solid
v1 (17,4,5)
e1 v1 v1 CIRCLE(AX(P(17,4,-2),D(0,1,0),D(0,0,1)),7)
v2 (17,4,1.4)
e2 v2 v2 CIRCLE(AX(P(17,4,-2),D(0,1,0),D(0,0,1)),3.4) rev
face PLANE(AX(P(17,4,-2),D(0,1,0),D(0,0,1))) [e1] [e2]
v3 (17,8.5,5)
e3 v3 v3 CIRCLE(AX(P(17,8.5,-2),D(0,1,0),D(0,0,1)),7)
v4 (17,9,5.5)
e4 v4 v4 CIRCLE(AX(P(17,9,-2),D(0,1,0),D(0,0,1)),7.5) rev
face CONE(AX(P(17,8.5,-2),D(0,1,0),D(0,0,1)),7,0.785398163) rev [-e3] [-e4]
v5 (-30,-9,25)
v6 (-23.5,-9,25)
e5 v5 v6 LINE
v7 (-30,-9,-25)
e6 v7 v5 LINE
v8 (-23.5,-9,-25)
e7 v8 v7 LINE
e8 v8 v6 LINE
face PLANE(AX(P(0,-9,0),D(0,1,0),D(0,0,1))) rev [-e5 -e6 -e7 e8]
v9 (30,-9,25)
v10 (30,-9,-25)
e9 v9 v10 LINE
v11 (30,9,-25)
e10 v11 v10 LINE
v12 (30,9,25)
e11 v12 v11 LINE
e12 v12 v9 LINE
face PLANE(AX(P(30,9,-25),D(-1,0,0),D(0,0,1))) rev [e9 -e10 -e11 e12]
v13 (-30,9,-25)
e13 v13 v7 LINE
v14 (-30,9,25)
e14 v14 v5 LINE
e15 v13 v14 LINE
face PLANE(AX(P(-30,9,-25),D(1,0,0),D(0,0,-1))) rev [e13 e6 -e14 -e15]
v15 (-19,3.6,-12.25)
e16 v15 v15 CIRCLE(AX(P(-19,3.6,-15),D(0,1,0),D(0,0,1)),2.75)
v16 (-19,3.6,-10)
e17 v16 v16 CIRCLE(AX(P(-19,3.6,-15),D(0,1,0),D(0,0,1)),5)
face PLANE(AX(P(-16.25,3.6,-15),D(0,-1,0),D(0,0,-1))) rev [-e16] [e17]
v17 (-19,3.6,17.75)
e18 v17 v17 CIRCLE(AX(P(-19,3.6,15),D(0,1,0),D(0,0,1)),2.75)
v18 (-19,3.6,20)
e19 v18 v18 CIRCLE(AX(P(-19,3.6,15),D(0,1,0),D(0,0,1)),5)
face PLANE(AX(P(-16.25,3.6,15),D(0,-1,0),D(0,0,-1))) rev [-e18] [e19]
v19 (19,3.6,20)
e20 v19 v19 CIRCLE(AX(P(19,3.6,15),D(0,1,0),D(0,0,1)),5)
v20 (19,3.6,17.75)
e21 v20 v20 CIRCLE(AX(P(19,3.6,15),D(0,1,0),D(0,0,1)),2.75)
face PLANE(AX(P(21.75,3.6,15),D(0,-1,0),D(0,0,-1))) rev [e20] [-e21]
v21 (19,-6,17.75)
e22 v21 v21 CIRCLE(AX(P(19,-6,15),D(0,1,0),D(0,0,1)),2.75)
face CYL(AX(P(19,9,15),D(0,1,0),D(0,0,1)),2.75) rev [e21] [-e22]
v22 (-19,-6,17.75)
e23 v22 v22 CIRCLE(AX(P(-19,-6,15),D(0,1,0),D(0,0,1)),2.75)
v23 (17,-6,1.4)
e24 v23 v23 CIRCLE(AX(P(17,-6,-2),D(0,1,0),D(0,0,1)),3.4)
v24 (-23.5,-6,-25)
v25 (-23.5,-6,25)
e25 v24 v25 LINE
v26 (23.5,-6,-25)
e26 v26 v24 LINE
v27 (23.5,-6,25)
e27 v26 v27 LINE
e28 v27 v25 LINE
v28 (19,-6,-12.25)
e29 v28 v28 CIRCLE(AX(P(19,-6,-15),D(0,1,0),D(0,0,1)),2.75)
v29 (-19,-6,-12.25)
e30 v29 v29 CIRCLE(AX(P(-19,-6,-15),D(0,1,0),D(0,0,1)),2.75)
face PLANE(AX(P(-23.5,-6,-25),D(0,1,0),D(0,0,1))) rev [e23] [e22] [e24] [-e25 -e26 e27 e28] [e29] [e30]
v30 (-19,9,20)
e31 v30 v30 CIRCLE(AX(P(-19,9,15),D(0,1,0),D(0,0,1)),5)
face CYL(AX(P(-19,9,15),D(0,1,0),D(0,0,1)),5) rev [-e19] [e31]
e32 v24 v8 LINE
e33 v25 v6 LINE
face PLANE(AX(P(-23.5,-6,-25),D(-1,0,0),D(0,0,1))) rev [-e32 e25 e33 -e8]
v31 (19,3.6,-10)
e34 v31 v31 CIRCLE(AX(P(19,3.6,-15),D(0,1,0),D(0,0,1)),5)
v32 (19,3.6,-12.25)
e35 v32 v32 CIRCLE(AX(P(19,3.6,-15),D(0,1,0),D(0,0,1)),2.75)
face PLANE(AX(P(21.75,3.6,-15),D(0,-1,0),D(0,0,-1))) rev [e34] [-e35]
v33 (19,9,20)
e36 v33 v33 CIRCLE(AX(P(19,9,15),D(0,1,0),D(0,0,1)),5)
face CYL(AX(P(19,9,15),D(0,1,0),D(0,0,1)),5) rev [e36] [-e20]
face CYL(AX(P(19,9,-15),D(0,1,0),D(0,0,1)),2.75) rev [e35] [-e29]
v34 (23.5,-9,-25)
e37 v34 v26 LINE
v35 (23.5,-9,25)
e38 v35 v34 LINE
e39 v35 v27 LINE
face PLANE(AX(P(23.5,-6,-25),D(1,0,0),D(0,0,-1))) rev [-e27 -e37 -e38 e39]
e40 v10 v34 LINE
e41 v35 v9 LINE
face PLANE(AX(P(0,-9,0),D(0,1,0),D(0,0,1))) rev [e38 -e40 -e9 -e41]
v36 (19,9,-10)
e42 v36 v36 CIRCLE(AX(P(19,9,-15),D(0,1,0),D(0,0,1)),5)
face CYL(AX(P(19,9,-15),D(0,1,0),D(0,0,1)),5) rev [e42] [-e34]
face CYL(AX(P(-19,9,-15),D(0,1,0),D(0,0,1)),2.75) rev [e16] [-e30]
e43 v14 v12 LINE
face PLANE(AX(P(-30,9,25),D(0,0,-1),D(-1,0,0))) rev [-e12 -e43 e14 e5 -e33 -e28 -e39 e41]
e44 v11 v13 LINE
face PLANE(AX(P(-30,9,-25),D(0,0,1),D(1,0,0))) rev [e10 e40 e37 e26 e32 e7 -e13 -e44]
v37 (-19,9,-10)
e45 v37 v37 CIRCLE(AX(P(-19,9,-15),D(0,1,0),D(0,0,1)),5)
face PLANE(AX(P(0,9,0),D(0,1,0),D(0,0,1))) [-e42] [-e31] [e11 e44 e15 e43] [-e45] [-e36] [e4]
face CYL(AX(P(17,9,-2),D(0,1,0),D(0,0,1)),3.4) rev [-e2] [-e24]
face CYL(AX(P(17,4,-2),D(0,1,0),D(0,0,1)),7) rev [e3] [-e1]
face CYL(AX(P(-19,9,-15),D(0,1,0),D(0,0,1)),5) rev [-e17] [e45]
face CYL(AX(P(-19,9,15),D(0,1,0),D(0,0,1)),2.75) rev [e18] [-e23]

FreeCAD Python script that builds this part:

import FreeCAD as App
import Part
import Sketcher

V = App.Vector


def edges_at(feature, points):
    """Names of the edges that pass closest to the given points."""
    edges = feature.Shape.Edges
    near = lambda p: min(range(len(edges)), key=lambda i: edges[i].distToShape(Part.Vertex(*p))[0])
    return sorted({f"Edge{near(p) + 1}" for p in points})

doc = App.newDocument("Part")
body = doc.addObject("PartDesign::Body", "Body")

# Sketch on XZ plane
sketch1 = body.newObject("Sketcher::SketchObject", "Sketch")
sketch1.AttachmentSupport = (doc.getObject("XZ_Plane"), [""])
sketch1.MapMode = "FlatFace"
sketch1.addGeometry(Part.LineSegment(V(-30, -25, 0), V(-30, 25, 0)), False)
sketch1.addGeometry(Part.LineSegment(V(-30, 25, 0), V(30, 25, 0)), False)
sketch1.addGeometry(Part.LineSegment(V(30, 25, 0), V(30, -25, 0)), False)
sketch1.addGeometry(Part.LineSegment(V(30, -25, 0), V(-30, -25, 0)), False)
sketch1.addConstraint(Sketcher.Constraint("Coincident", 0, 2, 1, 1))
sketch1.addConstraint(Sketcher.Constraint("Coincident", 1, 2, 2, 1))
sketch1.addConstraint(Sketcher.Constraint("Coincident", 2, 2, 3, 1))
sketch1.addConstraint(Sketcher.Constraint("Coincident", 3, 2, 0, 1))
sketch1.addConstraint(Sketcher.Constraint("Vertical", 0))
sketch1.addConstraint(Sketcher.Constraint("Horizontal", 1))
sketch1.addConstraint(Sketcher.Constraint("Vertical", 2))
sketch1.addConstraint(Sketcher.Constraint("Horizontal", 3))
sketch1.addConstraint(Sketcher.Constraint("Symmetric", 0, 2, 2, 2, -1, 1))
sketch1.addConstraint(Sketcher.Constraint("DistanceX", 1, 1, 1, 2, 60.0))
sketch1.addConstraint(Sketcher.Constraint("DistanceY", 0, 1, 0, 2, 50.0))
pad1 = body.newObject("PartDesign::Pad", "Pad")
pad1.Profile = sketch1
pad1.Length = 18
pad1.Midplane = True

# Sketch on XY plane
sketch2 = body.newObject("Sketcher::SketchObject", "Sketch001")
sketch2.AttachmentSupport = (doc.getObject("XY_Plane"), [""])
sketch2.MapMode = "FlatFace"
sketch2.AttachmentOffset = App.Placement(V(0, 0, 25), App.Rotation())
sketch2.addGeometry(Part.LineSegment(V(-24, -6, 0), V(-24, -12, 0)), False)
sketch2.addGeometry(Part.LineSegment(V(-24, -12, 0), V(24, -12, 0)), False)
sketch2.addGeometry(Part.LineSegment(V(24, -12, 0), V(24, -6, 0)), False)
sketch2.addGeometry(Part.LineSegment(V(24, -6, 0), V(-24, -6, 0)), False)
sketch2.addConstraint(Sketcher.Constraint("Coincident", 0, 2, 1, 1))
sketch2.addConstraint(Sketcher.Constraint("Coincident", 1, 2, 2, 1))
sketch2.addConstraint(Sketcher.Constraint("Coincident", 2, 2, 3, 1))
sketch2.addConstraint(Sketcher.Constraint("Coincident", 3, 2, 0, 1))
sketch2.addConstraint(Sketcher.Constraint("Vertical", 0))
sketch2.addConstraint(Sketcher.Constraint("Horizontal", 1))
sketch2.addConstraint(Sketcher.Constraint("Vertical", 2))
sketch2.addConstraint(Sketcher.Constraint("Horizontal", 3))
sketch2.addConstraint(Sketcher.Constraint("DistanceX", 1, 1, 1, 2, 47.0))
sketch2.addConstraint(Sketcher.Constraint("DistanceY", 0, 2, 0, 1, 6.0))
sketch2.addConstraint(Sketcher.Constraint("DistanceY", 0, 2, -1, 1, 12.0))
sketch2.addConstraint(Sketcher.Constraint("DistanceX", 0, 2, -1, 1, 23.5))
pocket1 = body.newObject("PartDesign::Pocket", "Pocket")
pocket1.Profile = sketch2
pocket1.Type = "ThroughAll"

# Sketch on XZ plane
sketch3 = body.newObject("Sketcher::SketchObject", "Sketch002")
sketch3.AttachmentSupport = (doc.getObject("XZ_Plane"), [""])
sketch3.MapMode = "FlatFace"
sketch3.AttachmentOffset = App.Placement(V(0, 0, -9), App.Rotation())
sketch3.addGeometry(Part.Circle(V(-19, -15, 0), V(0, 0, 1), 2.8), False)
sketch3.addGeometry(Part.Circle(V(19, -15, 0), V(0, 0, 1), 2.8), False)
sketch3.addGeometry(Part.Circle(V(19, 15, 0), V(0, 0, 1), 2.8), False)
sketch3.addGeometry(Part.Circle(V(-19, 15, 0), V(0, 0, 1), 2.8), False)
sketch3.addConstraint(Sketcher.Constraint("Equal", 0, 1))
sketch3.addConstraint(Sketcher.Constraint("Equal", 1, 2))
sketch3.addConstraint(Sketcher.Constraint("Equal", 2, 3))
sketch3.addConstraint(Sketcher.Constraint("Symmetric", 0, 3, 2, 3, -1, 1))
sketch3.addConstraint(Sketcher.Constraint("Symmetric", 1, 3, 3, 3, -1, 1))
sketch3.addConstraint(Sketcher.Constraint("Symmetric", 0, 3, 1, 3, -2))
sketch3.addConstraint(Sketcher.Constraint("Diameter", 0, 5.5))
sketch3.addConstraint(Sketcher.Constraint("DistanceX", 0, 3, -1, 1, 19.0))
sketch3.addConstraint(Sketcher.Constraint("DistanceY", 0, 3, -1, 1, 15.0))
doc.recompute()
hole = body.newObject("PartDesign::Hole", "Hole")
hole.Profile = sketch3
hole.ThreadType = "None"
hole.Diameter = 5.5
hole.DepthType = "ThroughAll"
hole.HoleCutType = "Counterbore"
hole.HoleCutDiameter = 10
hole.HoleCutDepth = 5.4
hole.Reversed = True

# Sketch on XZ plane
sketch4 = body.newObject("Sketcher::SketchObject", "Sketch003")
sketch4.AttachmentSupport = (doc.getObject("XZ_Plane"), [""])
sketch4.MapMode = "FlatFace"
sketch4.AttachmentOffset = App.Placement(V(0, 0, -9), App.Rotation())
sketch4.addGeometry(Part.Circle(V(17, -2, 0), V(0, 0, 1), 3.4), False)
sketch4.addConstraint(Sketcher.Constraint("Diameter", 0, 6.8))
sketch4.addConstraint(Sketcher.Constraint("DistanceX", -1, 1, 0, 3, 17.0))
sketch4.addConstraint(Sketcher.Constraint("DistanceY", 0, 3, -1, 1, 2.0))
doc.recompute()
hole2 = body.newObject("PartDesign::Hole", "Hole001")
hole2.Profile = sketch4
hole2.ThreadType = "None"
hole2.Diameter = 6.8
hole2.DepthType = "ThroughAll"
hole2.Reversed = True

# Sketch on XZ plane
sketch5 = body.newObject("Sketcher::SketchObject", "Sketch004")
sketch5.AttachmentSupport = (doc.getObject("XZ_Plane"), [""])
sketch5.MapMode = "FlatFace"
sketch5.AttachmentOffset = App.Placement(V(0, 0, -9), App.Rotation())
sketch5.addGeometry(Part.Circle(V(17, -2, 0), V(0, 0, 1), 7), False)
sketch5.addConstraint(Sketcher.Constraint("Diameter", 0, 14.0))
sketch5.addConstraint(Sketcher.Constraint("DistanceX", -1, 1, 0, 3, 17.0))
sketch5.addConstraint(Sketcher.Constraint("DistanceY", 0, 3, -1, 1, 2.0))
pocket2 = body.newObject("PartDesign::Pocket", "Pocket001")
pocket2.Profile = sketch5
pocket2.Length = 5
pocket2.Reversed = True
doc.recompute()

chamfer = body.newObject("PartDesign::Chamfer", "Chamfer")
chamfer.Base = (pocket2, edges_at(pocket2, [(17, 9, -9)]))
chamfer.Size = 0.5

doc.recompute()
